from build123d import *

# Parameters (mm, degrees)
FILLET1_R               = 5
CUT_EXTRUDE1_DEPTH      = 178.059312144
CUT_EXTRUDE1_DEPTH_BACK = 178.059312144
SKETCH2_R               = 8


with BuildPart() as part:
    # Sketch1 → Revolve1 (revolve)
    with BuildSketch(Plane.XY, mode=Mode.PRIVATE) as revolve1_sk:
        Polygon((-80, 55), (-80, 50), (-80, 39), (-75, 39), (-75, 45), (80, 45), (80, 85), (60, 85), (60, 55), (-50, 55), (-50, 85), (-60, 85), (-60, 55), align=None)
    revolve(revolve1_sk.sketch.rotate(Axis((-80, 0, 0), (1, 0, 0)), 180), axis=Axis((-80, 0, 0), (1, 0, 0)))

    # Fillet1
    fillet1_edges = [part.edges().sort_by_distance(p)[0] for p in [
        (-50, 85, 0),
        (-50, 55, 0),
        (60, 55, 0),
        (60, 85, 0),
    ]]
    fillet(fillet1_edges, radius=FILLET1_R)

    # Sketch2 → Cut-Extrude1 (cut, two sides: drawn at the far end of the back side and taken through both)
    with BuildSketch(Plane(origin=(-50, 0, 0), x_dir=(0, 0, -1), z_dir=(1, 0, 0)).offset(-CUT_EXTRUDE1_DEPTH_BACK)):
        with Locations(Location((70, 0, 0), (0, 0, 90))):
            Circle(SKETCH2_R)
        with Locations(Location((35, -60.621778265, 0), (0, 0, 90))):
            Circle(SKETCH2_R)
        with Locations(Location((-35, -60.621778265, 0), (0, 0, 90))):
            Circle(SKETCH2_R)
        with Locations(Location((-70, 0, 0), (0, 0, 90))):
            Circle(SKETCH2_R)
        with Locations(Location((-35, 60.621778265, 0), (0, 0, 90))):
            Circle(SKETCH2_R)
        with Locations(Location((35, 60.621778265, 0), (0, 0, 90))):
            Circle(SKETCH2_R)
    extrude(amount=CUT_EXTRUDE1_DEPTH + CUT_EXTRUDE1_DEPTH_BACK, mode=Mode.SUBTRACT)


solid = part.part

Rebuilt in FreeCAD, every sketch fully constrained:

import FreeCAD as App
import Part
import Sketcher


def edges_at(feature, points):
    """Names of the edges that pass closest to the given points."""
    edges = feature.Shape.Edges
    near = lambda p: min(range(len(edges)), key=lambda i: edges[i].distToShape(Part.Vertex(*p))[0])
    return sorted({f"Edge{near(p) + 1}" for p in points})


def add_polygon(sketch, points):
    """Adds a closed chain of lines whose ends are joined by coincident constraints."""
    first, n = sketch.GeometryCount, len(points)
    for a, b in zip(points, points[1:] + points[:1]):
        sketch.addGeometry(Part.LineSegment(App.Vector(*a, 0), App.Vector(*b, 0)), False)
    for i in range(n):
        sketch.addConstraint(Sketcher.Constraint("Coincident", first + i, 2, first + (i + 1) % n, 1))

doc = App.newDocument("Part")
body = doc.addObject("PartDesign::Body", "Body")

sketch1 = body.newObject("Sketcher::SketchObject", "Sketch")
sketch1.AttachmentSupport = (doc.getObject("XY_Plane"), [""])
sketch1.MapMode = "FlatFace"
add_polygon(sketch1, [(-80, 55), (-80, 39), (-75, 39), (-75, 45), (80, 45), (80, 85), (60, 85), (60, 55), (-50, 55), (-50, 85), (-60, 85), (-60, 55)])
sketch1.addConstraint([
    Sketcher.Constraint("Vertical", 0),
    Sketcher.Constraint("Horizontal", 1),
    Sketcher.Constraint("Vertical", 2),
    Sketcher.Constraint("Horizontal", 3),
    Sketcher.Constraint("Vertical", 4),
    Sketcher.Constraint("Horizontal", 5),
    Sketcher.Constraint("Vertical", 6),
    Sketcher.Constraint("Horizontal", 7),
    Sketcher.Constraint("Vertical", 8),
    Sketcher.Constraint("Horizontal", 9),
    Sketcher.Constraint("Vertical", 10),
    Sketcher.Constraint("Horizontal", 11),
    Sketcher.Constraint("Symmetric", 5, 2, 9, 2, -2),
    Sketcher.Constraint("Horizontal", 7, 2, 10, 2),
    Sketcher.Constraint("Equal", 5, 11),
    Sketcher.Constraint("DistanceX", 1, 1, 1, 2, 5.0),
    Sketcher.Constraint("DistanceX", 3, 1, 3, 2, 155.0),
    Sketcher.Constraint("DistanceX", 5, 2, 5, 1, 20.0),
    Sketcher.Constraint("DistanceX", 7, 2, 7, 1, 110.0),
    Sketcher.Constraint("DistanceY", 0, 2, 0, 1, 16.0),
    Sketcher.Constraint("DistanceY", 2, 1, 2, 2, 6.0),
    Sketcher.Constraint("DistanceY", 4, 1, 4, 2, 40.0),
    Sketcher.Constraint("DistanceY", -1, 1, 0, 2, 39.0),
])
revolution = body.newObject("PartDesign::Revolution", "Revolution")
revolution.Profile = sketch1
revolution.ReferenceAxis = (sketch1, ["H_Axis"])
revolution.Angle = 360
doc.recompute()

fillet = body.newObject("PartDesign::Fillet", "Fillet")
fillet.Base = (revolution, edges_at(revolution, [
    (-50, 85, 0),
    (-50, 55, 0),
    (60, 55, 0),
    (60, 85, 0),
]))
fillet.Radius = 5

sketch2 = body.newObject("Sketcher::SketchObject", "Sketch001")
sketch2.AttachmentSupport = (doc.getObject("YZ_Plane"), [""])
sketch2.MapMode = "FlatFace"
sketch2.AttachmentOffset = App.Placement(App.Vector(0, 0, -50), App.Rotation())
sketch2.addGeometry([
    Part.Circle(App.Vector(0, -70, 0), App.Vector(0, 0, 1), 8),
    Part.Circle(App.Vector(-60.621778, -35, 0), App.Vector(0, 0, 1), 8),
    Part.Circle(App.Vector(-60.621778, 35, 0), App.Vector(0, 0, 1), 8),
    Part.Circle(App.Vector(0, 70, 0), App.Vector(0, 0, 1), 8),
    Part.Circle(App.Vector(60.621778, 35, 0), App.Vector(0, 0, 1), 8),
    Part.Circle(App.Vector(60.621778, -35, 0), App.Vector(0, 0, 1), 8),
], False)
sketch2.addConstraint([
    Sketcher.Constraint("Equal", 0, 1),
    Sketcher.Constraint("Equal", 1, 2),
    Sketcher.Constraint("Equal", 2, 3),
    Sketcher.Constraint("Equal", 3, 4),
    Sketcher.Constraint("Equal", 4, 5),
    Sketcher.Constraint("Symmetric", 0, 3, 3, 3, -1, 1),
    Sketcher.Constraint("Symmetric", 1, 3, 4, 3, -1, 1),
    Sketcher.Constraint("Symmetric", 2, 3, 5, 3, -1, 1),
    Sketcher.Constraint("Symmetric", 2, 3, 4, 3, -2),
    Sketcher.Constraint("PointOnObject", 0, 3, -2),
    Sketcher.Constraint("Diameter", 0, 16.0),
    Sketcher.Constraint("DistanceY", 0, 3, -1, 1, 70.0),
    Sketcher.Constraint("DistanceY", 1, 3, -1, 1, 35.0),
    Sketcher.Constraint("DistanceX", 1, 3, -1, 1, 60.621778),
])
pocket1 = body.newObject("PartDesign::Pocket", "Pocket")
pocket1.Profile = sketch2
pocket1.Type = "ThroughAll"
pocket1.Midplane = True

doc.recompute()
